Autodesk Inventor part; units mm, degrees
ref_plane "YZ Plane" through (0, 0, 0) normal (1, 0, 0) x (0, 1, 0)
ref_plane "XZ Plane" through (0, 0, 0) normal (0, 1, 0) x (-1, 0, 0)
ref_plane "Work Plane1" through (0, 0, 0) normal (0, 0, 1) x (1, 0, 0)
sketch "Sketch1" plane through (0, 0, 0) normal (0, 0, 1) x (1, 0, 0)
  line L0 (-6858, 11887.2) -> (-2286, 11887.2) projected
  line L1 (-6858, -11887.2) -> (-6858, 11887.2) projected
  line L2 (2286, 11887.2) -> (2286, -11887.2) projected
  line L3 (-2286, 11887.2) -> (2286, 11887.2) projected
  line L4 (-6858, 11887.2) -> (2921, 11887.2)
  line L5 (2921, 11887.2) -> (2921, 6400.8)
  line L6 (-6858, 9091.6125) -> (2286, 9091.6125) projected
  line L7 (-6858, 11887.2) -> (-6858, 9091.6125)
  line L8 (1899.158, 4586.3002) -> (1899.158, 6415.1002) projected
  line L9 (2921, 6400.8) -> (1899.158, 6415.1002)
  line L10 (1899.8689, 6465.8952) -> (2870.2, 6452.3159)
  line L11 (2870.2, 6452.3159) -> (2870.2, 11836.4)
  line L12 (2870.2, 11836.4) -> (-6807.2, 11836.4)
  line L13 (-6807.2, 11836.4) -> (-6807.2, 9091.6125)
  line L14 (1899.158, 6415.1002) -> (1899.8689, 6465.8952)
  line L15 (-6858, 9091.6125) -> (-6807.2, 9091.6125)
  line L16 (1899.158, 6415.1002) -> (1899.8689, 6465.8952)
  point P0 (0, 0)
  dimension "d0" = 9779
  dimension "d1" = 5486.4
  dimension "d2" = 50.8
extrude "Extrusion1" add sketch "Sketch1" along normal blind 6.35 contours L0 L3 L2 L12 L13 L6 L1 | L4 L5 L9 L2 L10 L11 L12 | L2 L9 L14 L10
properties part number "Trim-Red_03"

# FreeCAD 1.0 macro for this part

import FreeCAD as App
import Part
import Sketcher
from FreeCAD import Vector
Q = App.Units.Quantity


def add_polygon(sketch, points):
    """Adds a closed chain of lines whose ends are joined by coincident constraints."""
    first, n = sketch.GeometryCount, len(points)
    for a, b in zip(points, points[1:] + points[:1]):
        sketch.addGeometry(Part.LineSegment(App.Vector(*a, 0), App.Vector(*b, 0)), False)
    for i in range(n):
        sketch.addConstraint(Sketcher.Constraint("Coincident", first + i, 2, first + (i + 1) % n, 1))

doc = App.newDocument("Part")
params = doc.addObject("Spreadsheet::Sheet", "Params")
for row, (alias, value) in enumerate([
    ("sketch1_width", "2 in"),
    ("sketch1_width2", "385 in"),
    ("sketch1_height", "216 in"),
    ("sketch1_length", "2 in"),
    ("sketch1_height2", "110.0625 in"),
    ("pad1_length", "0.25 in"),
], start=1):
    params.set(f"A{row}", alias)
    params.set(f"B{row}", "=" + value)
    params.setAlias(f"B{row}", alias)

body = doc.addObject("PartDesign::Body", "Body")

sketch1 = body.newObject("Sketcher::SketchObject", "Sketch")
sketch1.AttachmentSupport = (doc.getObject("XY_Plane"), [""])
sketch1.MapMode = "FlatFace"
add_polygon(sketch1, [(-6858, 11887.2), (-6858, 9091.6125), (-6807.2, 9091.6125), (-6807.2, 11836.4), (2870.2, 11836.4), (2870.2, 6452.3159), (1899.8689, 6465.8952), (1899.158, 6415.1002), (2921, 6400.8), (2921, 11887.2)])
sketch1.addConstraint([
    Sketcher.Constraint("Vertical", 0),
    Sketcher.Constraint("Horizontal", 1),
    Sketcher.Constraint("Vertical", 2),
    Sketcher.Constraint("Horizontal", 3),
    Sketcher.Constraint("Vertical", 4),
    Sketcher.Constraint("Vertical", 8),
    Sketcher.Constraint("Horizontal", 9),
    Sketcher.Constraint("DistanceX", 1, 1, 1, 2, Q("2 in")),
    Sketcher.Constraint("DistanceX", 9, 2, 9, 1, Q("385 in")),
    Sketcher.Constraint("DistanceY", 8, 1, 8, 2, Q("216 in")),
    Sketcher.Constraint("Distance", 6, Q("2 in")),
    Sketcher.Constraint("DistanceX", 4, 2, 7, 2, Q("2 in")),
    Sketcher.Constraint("DistanceY", 3, 2, 8, 2, Q("2 in")),
    Sketcher.Constraint("DistanceX", 0, 2, -1, 1, Q("270 in")),
    Sketcher.Constraint("DistanceY", -1, 1, 2, 2, Q("466 in")),
    Sketcher.Constraint("DistanceY", 0, 2, 0, 1, Q("110.0625 in")),
    Sketcher.Constraint("DistanceX", -1, 1, 6, 2, Q("74.77 in")),
    Sketcher.Constraint("DistanceX", -1, 1, 5, 2, Q("74.798 in")),
    Sketcher.Constraint("DistanceY", -1, 1, 6, 2, Q("252.563 in")),
    Sketcher.Constraint("DistanceY", 4, 2, 4, 1, Q("211.971811 in")),
])
sketch1.setExpression("Constraints[17]", "Params.sketch1_width")
sketch1.setExpression("Constraints[18]", "Params.sketch1_width2")
sketch1.setExpression("Constraints[19]", "Params.sketch1_height")
sketch1.setExpression("Constraints[20]", "Params.sketch1_length")
sketch1.setExpression("Constraints[25]", "Params.sketch1_height2")
pad1 = body.newObject("PartDesign::Pad", "Pad")
pad1.Profile = sketch1
pad1.setExpression("Length", "Params.pad1_length")

doc.recompute()
